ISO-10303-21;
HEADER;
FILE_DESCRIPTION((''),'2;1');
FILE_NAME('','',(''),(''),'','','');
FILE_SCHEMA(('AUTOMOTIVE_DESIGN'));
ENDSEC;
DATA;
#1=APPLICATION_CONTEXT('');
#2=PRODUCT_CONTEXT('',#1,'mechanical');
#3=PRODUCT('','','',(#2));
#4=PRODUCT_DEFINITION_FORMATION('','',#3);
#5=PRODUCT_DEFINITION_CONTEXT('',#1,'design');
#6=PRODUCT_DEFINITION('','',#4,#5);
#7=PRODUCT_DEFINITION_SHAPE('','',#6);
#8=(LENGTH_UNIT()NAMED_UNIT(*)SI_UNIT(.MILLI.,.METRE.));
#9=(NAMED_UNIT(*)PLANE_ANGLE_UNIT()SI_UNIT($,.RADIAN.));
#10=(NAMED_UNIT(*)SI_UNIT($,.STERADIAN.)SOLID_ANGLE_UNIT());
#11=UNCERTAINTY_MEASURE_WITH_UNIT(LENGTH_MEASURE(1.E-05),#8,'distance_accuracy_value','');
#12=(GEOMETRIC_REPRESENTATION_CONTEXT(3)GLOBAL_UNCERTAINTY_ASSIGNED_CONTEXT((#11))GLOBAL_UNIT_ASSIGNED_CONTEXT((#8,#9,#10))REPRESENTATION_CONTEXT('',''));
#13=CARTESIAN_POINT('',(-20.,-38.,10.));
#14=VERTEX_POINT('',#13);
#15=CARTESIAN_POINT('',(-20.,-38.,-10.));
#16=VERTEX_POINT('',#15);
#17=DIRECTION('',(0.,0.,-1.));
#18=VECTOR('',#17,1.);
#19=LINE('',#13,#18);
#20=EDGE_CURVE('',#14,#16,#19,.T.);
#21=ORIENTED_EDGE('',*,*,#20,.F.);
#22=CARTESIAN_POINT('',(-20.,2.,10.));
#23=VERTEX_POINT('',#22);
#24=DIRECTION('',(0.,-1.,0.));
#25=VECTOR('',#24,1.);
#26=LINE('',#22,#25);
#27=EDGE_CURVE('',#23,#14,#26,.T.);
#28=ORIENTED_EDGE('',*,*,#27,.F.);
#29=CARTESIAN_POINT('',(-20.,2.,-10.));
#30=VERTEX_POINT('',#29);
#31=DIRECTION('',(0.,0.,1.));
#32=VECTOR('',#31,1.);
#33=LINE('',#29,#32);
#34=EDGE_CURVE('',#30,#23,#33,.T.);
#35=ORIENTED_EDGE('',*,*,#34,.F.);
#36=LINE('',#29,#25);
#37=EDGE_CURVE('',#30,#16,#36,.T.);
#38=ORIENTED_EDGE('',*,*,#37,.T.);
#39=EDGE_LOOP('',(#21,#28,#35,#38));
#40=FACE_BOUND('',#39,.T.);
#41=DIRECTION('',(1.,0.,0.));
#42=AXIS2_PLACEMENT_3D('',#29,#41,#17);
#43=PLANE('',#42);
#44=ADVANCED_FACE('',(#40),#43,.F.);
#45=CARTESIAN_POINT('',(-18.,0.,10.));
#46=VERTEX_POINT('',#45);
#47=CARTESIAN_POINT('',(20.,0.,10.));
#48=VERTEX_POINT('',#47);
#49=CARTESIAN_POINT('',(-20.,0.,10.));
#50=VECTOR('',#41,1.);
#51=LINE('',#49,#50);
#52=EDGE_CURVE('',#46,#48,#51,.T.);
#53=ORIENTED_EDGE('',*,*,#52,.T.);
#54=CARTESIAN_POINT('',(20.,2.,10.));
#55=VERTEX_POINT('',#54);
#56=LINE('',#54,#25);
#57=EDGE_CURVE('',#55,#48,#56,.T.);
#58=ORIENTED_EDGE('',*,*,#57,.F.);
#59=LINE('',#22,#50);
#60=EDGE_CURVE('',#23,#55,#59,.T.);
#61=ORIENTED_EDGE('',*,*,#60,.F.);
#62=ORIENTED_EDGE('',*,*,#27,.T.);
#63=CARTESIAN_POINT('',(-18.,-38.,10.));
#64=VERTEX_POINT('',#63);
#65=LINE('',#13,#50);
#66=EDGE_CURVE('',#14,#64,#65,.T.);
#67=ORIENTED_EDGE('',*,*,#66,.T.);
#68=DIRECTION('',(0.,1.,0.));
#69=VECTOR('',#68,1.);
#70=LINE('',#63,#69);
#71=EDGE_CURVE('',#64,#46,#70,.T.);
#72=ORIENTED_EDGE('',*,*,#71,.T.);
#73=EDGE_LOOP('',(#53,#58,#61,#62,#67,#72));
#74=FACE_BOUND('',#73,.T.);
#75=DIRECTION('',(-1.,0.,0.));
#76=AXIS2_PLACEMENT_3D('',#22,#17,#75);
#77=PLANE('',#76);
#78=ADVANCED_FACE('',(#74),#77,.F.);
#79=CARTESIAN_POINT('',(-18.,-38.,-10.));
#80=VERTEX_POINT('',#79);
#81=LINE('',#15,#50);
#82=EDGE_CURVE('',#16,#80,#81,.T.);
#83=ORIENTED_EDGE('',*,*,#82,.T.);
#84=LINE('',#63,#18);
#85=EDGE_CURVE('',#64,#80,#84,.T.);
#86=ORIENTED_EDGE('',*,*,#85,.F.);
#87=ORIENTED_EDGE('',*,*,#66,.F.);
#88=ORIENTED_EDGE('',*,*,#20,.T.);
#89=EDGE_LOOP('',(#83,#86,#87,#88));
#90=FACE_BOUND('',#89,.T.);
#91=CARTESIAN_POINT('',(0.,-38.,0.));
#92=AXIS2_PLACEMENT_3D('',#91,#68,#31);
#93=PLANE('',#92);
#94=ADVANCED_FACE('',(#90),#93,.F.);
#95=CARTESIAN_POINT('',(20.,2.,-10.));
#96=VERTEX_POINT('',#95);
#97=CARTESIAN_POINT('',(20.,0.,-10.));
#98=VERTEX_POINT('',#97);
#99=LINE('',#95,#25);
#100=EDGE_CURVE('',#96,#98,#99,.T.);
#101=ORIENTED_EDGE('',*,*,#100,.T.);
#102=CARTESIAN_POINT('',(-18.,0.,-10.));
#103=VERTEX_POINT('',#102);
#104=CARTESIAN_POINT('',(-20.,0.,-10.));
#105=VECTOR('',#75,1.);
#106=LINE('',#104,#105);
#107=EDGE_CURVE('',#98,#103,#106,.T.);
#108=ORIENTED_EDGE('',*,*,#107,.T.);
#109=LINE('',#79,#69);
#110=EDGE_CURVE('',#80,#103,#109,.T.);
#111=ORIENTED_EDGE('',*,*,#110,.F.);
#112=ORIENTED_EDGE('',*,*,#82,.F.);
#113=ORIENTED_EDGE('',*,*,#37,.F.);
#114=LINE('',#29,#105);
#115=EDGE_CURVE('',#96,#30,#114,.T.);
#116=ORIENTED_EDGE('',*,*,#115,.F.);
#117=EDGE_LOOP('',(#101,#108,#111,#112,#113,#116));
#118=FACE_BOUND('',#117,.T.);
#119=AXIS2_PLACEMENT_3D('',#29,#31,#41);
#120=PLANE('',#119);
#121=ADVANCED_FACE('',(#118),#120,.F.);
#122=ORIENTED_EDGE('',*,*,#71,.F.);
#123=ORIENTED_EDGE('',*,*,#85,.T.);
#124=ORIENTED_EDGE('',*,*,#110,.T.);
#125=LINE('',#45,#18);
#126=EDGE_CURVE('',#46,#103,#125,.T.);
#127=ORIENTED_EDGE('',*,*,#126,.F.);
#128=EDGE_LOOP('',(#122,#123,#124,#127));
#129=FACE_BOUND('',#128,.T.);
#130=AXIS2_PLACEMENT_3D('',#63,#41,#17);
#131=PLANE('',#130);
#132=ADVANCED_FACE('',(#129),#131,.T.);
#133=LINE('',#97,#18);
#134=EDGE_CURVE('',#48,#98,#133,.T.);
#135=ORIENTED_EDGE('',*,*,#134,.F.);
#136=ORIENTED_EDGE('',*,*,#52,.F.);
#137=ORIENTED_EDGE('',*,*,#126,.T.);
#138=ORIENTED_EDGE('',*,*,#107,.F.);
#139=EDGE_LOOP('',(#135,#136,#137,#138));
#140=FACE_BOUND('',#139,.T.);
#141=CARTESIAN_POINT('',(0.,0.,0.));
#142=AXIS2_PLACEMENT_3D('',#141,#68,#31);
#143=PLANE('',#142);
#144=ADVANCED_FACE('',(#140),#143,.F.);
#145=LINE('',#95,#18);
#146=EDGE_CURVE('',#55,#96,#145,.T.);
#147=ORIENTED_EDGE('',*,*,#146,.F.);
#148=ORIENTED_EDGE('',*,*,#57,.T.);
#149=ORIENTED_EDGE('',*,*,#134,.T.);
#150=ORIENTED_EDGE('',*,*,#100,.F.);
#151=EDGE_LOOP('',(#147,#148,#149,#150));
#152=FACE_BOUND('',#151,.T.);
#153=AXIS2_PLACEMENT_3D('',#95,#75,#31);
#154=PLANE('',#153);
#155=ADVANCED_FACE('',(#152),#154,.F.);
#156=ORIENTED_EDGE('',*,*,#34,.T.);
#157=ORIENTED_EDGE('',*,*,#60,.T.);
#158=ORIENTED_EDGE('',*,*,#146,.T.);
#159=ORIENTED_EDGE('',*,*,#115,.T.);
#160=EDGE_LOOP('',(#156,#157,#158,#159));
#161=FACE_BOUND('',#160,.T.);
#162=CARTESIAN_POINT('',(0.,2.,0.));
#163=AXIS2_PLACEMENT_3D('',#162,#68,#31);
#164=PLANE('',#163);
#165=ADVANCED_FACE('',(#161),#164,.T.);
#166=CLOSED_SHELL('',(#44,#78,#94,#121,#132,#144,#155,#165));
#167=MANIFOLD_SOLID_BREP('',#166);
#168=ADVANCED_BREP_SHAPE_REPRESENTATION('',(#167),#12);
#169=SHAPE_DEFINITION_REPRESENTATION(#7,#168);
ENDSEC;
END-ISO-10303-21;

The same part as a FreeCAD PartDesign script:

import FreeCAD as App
import Part
import Sketcher
from FreeCAD import Vector
Q = App.Units.Quantity

doc = App.newDocument("Part")
body = doc.addObject("PartDesign::Body", "Body")

# Sketch on XZ plane
sketch1 = doc.addObject("Sketcher::SketchObject", "Sketch")
body.addObject(sketch1)
sketch1.AttachmentSupport = (doc.XZ_Plane, [""])
sketch1.MapMode = "FlatFace"
sketch1.addGeometry(Part.LineSegment(Vector(-20, -10, 0), Vector(-20, 10, 0)), False)
sketch1.addGeometry(Part.LineSegment(Vector(-20, 10, 0), Vector(20, 10, 0)), False)
sketch1.addGeometry(Part.LineSegment(Vector(20, 10, 0), Vector(20, -10, 0)), False)
sketch1.addGeometry(Part.LineSegment(Vector(20, -10, 0), Vector(-20, -10, 0)), False)
sketch1.addConstraint(Sketcher.Constraint("Coincident", 0, 2, 1, 1))
sketch1.addConstraint(Sketcher.Constraint("Coincident", 1, 2, 2, 1))
sketch1.addConstraint(Sketcher.Constraint("Coincident", 2, 2, 3, 1))
sketch1.addConstraint(Sketcher.Constraint("Coincident", 3, 2, 0, 1))
sketch1.addConstraint(Sketcher.Constraint("Vertical", 0))
sketch1.addConstraint(Sketcher.Constraint("Horizontal", 1))
sketch1.addConstraint(Sketcher.Constraint("Vertical", 2))
sketch1.addConstraint(Sketcher.Constraint("Horizontal", 3))
sketch1.addConstraint(Sketcher.Constraint("Symmetric", 0, 2, 2, 2, -1, 1))
sketch1.addConstraint(Sketcher.Constraint("DistanceX", 1, 1, 1, 2, Q("40 mm")))
sketch1.addConstraint(Sketcher.Constraint("DistanceY", 0, 1, 0, 2, Q("20 mm")))
pad1 = doc.addObject("PartDesign::Pad", "Pad")
body.addObject(pad1)
pad1.Profile = sketch1
pad1.Length = 2
pad1.Reversed = True

# Sketch on XZ plane
sketch2 = doc.addObject("Sketcher::SketchObject", "Sketch001")
body.addObject(sketch2)
sketch2.AttachmentSupport = (doc.XZ_Plane, [""])
sketch2.MapMode = "FlatFace"
sketch2.addGeometry(Part.LineSegment(Vector(-20, 10, 0), Vector(-20, -10, 0)), False)
sketch2.addGeometry(Part.LineSegment(Vector(-20, -10, 0), Vector(-18, -10, 0)), False)
sketch2.addGeometry(Part.LineSegment(Vector(-18, -10, 0), Vector(-18, 10, 0)), False)
sketch2.addGeometry(Part.LineSegment(Vector(-18, 10, 0), Vector(-20, 10, 0)), False)
sketch2.addConstraint(Sketcher.Constraint("Coincident", 0, 2, 1, 1))
sketch2.addConstraint(Sketcher.Constraint("Coincident", 1, 2, 2, 1))
sketch2.addConstraint(Sketcher.Constraint("Coincident", 2, 2, 3, 1))
sketch2.addConstraint(Sketcher.Constraint("Coincident", 3, 2, 0, 1))
sketch2.addConstraint(Sketcher.Constraint("Vertical", 0))
sketch2.addConstraint(Sketcher.Constraint("Horizontal", 1))
sketch2.addConstraint(Sketcher.Constraint("Vertical", 2))
sketch2.addConstraint(Sketcher.Constraint("Horizontal", 3))
sketch2.addConstraint(Sketcher.Constraint("DistanceX", 1, 1, 1, 2, Q("2 mm")))
sketch2.addConstraint(Sketcher.Constraint("DistanceY", 0, 2, 0, 1, Q("20 mm")))
sketch2.addConstraint(Sketcher.Constraint("DistanceX", 0, 2, -1, 1, Q("20 mm")))
sketch2.addConstraint(Sketcher.Constraint("DistanceY", 0, 2, -1, 1, Q("10 mm")))
pad2 = doc.addObject("PartDesign::Pad", "Pad001")
body.addObject(pad2)
pad2.Profile = sketch2
pad2.Length = 38

doc.recompute()
